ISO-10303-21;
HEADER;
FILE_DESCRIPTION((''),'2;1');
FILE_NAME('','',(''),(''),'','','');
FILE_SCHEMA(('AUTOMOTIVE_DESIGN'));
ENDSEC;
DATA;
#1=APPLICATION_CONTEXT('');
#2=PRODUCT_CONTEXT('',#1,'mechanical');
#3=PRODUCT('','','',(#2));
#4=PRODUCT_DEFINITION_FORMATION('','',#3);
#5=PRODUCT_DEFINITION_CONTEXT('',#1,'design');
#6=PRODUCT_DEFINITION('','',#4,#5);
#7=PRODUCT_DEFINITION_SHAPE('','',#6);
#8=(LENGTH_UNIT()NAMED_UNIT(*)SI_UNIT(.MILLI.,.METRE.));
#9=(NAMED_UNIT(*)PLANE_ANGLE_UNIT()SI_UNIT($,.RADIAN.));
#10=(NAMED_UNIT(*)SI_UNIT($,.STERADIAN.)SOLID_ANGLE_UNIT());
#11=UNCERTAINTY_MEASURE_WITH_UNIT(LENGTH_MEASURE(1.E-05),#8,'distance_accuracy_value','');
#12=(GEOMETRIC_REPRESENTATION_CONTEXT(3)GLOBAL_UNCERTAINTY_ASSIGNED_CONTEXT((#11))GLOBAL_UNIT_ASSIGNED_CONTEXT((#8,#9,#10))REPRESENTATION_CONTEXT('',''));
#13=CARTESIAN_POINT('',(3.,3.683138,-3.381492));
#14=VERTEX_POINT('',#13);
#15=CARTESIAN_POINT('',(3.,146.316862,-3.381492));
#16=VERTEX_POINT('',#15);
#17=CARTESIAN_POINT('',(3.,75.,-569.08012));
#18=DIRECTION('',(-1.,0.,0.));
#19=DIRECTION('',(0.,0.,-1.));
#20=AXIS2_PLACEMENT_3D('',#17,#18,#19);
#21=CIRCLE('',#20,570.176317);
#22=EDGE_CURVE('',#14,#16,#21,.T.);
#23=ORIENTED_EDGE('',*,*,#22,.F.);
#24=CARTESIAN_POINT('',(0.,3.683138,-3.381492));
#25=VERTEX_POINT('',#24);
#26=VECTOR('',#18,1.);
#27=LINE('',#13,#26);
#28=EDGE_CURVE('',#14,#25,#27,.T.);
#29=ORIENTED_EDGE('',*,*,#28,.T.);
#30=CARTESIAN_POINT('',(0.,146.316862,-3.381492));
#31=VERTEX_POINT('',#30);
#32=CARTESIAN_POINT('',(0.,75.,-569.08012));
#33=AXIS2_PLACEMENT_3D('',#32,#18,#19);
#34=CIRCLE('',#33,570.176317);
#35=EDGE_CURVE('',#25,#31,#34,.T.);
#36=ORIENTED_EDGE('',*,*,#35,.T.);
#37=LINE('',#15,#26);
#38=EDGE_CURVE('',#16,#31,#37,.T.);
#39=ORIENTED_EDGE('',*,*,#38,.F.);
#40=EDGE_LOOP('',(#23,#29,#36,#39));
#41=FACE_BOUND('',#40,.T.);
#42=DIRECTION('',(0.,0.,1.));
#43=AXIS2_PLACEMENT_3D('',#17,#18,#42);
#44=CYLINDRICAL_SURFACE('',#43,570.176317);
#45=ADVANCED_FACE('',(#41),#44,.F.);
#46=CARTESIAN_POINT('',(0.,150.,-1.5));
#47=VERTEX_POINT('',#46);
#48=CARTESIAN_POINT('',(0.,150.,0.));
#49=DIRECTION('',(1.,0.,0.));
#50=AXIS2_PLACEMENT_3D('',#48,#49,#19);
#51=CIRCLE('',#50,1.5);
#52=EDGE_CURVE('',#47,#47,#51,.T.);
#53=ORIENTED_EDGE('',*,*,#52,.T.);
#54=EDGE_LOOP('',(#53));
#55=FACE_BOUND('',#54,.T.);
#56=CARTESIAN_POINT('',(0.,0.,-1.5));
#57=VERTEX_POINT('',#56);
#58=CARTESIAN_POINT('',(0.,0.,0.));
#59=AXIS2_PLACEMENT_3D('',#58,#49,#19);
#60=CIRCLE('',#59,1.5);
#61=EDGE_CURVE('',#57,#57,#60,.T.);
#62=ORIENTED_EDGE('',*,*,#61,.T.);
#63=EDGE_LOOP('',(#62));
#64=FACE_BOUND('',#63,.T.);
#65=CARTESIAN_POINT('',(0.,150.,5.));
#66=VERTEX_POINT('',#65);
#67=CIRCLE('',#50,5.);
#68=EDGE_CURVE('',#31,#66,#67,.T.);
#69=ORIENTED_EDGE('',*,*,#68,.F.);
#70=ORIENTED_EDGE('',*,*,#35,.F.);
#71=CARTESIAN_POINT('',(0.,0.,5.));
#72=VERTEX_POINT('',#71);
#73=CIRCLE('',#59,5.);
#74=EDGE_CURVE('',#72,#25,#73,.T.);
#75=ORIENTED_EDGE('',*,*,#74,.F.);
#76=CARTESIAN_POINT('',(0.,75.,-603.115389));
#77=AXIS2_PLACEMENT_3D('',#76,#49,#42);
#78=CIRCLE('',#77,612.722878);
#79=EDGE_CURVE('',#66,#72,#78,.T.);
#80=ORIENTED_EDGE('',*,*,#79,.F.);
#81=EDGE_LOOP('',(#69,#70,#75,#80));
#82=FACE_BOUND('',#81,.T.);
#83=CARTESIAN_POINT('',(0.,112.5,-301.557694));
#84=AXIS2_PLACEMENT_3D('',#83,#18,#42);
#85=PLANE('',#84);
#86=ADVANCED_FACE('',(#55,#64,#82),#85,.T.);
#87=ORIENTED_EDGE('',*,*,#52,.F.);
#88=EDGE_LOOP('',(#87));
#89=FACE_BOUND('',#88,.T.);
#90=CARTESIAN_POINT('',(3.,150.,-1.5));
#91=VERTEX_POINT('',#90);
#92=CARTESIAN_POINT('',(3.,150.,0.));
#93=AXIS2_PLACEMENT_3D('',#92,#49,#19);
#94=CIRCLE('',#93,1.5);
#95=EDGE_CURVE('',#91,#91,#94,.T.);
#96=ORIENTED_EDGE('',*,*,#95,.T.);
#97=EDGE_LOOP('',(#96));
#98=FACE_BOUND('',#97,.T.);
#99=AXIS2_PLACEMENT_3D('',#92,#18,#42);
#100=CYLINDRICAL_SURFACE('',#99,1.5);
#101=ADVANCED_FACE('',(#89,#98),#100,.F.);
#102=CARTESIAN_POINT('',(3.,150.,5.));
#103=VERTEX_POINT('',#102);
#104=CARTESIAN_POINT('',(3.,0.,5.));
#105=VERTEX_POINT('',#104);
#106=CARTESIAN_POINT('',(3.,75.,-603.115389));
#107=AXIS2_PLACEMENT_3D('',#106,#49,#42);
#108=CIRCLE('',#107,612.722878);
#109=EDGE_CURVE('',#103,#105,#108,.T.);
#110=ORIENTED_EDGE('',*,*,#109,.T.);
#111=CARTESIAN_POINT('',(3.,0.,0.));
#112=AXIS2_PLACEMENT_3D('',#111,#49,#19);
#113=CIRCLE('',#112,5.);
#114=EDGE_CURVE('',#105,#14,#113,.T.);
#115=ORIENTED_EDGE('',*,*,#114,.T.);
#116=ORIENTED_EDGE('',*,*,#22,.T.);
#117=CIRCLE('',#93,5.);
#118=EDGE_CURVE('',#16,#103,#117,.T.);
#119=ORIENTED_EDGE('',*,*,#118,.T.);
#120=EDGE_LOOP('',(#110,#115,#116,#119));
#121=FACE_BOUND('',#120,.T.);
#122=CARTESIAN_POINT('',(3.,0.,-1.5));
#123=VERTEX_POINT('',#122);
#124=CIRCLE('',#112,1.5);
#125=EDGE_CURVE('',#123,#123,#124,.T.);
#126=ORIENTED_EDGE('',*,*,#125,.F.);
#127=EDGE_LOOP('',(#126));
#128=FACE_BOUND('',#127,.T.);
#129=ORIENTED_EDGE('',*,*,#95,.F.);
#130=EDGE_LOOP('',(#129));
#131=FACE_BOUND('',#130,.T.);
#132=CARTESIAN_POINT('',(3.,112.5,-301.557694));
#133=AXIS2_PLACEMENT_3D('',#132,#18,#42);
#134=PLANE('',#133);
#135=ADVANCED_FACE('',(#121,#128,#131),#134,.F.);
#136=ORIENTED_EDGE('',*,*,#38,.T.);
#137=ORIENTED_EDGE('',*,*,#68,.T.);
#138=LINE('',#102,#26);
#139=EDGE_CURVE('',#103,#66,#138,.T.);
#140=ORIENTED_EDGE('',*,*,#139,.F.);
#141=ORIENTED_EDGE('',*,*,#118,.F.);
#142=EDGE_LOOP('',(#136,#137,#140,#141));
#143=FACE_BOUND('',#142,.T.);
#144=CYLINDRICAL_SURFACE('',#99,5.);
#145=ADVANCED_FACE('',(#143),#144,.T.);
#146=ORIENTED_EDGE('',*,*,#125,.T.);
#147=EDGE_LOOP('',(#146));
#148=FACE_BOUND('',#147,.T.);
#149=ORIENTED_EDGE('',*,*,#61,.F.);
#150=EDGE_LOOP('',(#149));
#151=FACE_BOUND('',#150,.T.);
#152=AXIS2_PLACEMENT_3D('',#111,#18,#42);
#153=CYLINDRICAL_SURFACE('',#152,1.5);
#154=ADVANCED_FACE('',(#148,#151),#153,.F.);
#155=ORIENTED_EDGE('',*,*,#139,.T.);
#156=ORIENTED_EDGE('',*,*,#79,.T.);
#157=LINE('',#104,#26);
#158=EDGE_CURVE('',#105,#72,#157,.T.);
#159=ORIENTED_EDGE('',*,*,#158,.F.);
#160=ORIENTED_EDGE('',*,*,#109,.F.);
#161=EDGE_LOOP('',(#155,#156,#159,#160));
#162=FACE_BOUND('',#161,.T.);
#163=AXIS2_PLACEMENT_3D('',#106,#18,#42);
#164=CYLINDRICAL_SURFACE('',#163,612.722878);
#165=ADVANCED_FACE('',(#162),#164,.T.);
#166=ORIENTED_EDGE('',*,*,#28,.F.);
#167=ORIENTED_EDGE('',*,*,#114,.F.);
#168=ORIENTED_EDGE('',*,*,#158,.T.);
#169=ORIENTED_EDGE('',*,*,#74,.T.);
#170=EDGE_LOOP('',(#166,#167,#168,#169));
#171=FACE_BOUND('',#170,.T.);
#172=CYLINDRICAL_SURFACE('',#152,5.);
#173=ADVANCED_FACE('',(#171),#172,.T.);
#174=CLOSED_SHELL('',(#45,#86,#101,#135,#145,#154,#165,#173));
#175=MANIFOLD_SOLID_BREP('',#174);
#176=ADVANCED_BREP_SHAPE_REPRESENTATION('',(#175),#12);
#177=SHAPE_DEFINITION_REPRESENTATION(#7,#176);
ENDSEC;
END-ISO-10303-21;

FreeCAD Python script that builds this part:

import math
import FreeCAD as App
import Part
import Sketcher
Q = App.Units.Quantity

doc = App.newDocument("Part")
body = doc.addObject("PartDesign::Body", "Body")

# Sketch on YZ plane
sketch1 = body.newObject("Sketcher::SketchObject", "Sketch")
sketch1.AttachmentSupport = (doc.getObject("YZ_Plane"), [""])
sketch1.MapMode = "FlatFace"
sketch1.addGeometry([
    Part.ArcOfCircle(Part.Circle(App.Vector(0, 0, 0), App.Vector(0, 0, 1), 5), math.radians(90), math.radians(317)),  # 0
    Part.ArcOfCircle(Part.Circle(App.Vector(75, -569.1, 0), App.Vector(0, 0, 1), 570.2), math.radians(82.81), math.radians(97.19)),  # 1
    Part.ArcOfCircle(Part.Circle(App.Vector(150, 0, 0), App.Vector(0, 0, 1), 5), math.radians(-137), math.radians(90)),  # 2
    Part.ArcOfCircle(Part.Circle(App.Vector(75, -603.1, 0), App.Vector(0, 0, 1), 612.7), math.radians(82.97), math.radians(97.03)),  # 3
    Part.Circle(App.Vector(0, 0, 0), App.Vector(0, 0, 1), 1.5),  # 4
    Part.Circle(App.Vector(150, 0, 0), App.Vector(0, 0, 1), 1.5),  # 5
], False)
sketch1.addConstraint([
    Sketcher.Constraint("Coincident", 0, 2, 1, 2),
    Sketcher.Constraint("Coincident", 1, 1, 2, 1),
    Sketcher.Constraint("Coincident", 2, 2, 3, 1),
    Sketcher.Constraint("Coincident", 3, 2, 0, 1),
    Sketcher.Constraint("Coincident", 0, 3, -1, 1),
    Sketcher.Constraint("Coincident", 4, 3, -1, 1),
    Sketcher.Constraint("Coincident", 5, 3, 2, 3),
    Sketcher.Constraint("Equal", 0, 2),
    Sketcher.Constraint("Equal", 4, 5),
    Sketcher.Constraint("PointOnObject", 2, 3, -1),
    Sketcher.Constraint("PointOnObject", 3, 2, -2),
    Sketcher.Constraint("Horizontal", 0, 2, 1, 1),
    Sketcher.Constraint("Vertical", 1, 3, 3, 3),
    Sketcher.Constraint("Diameter", 4, Q("3 mm")),
    Sketcher.Constraint("Radius", 0, Q("5 mm")),
    Sketcher.Constraint("DistanceX", -1, 1, 1, 3, Q("75 mm")),
    Sketcher.Constraint("Radius", 3, Q("612.722878 mm")),
    Sketcher.Constraint("Radius", 1, Q("570.176317 mm")),
    Sketcher.Constraint("DistanceY", 1, 3, -1, 1, Q("569.08012 mm")),
])
pad1 = body.newObject("PartDesign::Pad", "Pad")
pad1.Profile = sketch1
pad1.Length = 3

doc.recompute()
